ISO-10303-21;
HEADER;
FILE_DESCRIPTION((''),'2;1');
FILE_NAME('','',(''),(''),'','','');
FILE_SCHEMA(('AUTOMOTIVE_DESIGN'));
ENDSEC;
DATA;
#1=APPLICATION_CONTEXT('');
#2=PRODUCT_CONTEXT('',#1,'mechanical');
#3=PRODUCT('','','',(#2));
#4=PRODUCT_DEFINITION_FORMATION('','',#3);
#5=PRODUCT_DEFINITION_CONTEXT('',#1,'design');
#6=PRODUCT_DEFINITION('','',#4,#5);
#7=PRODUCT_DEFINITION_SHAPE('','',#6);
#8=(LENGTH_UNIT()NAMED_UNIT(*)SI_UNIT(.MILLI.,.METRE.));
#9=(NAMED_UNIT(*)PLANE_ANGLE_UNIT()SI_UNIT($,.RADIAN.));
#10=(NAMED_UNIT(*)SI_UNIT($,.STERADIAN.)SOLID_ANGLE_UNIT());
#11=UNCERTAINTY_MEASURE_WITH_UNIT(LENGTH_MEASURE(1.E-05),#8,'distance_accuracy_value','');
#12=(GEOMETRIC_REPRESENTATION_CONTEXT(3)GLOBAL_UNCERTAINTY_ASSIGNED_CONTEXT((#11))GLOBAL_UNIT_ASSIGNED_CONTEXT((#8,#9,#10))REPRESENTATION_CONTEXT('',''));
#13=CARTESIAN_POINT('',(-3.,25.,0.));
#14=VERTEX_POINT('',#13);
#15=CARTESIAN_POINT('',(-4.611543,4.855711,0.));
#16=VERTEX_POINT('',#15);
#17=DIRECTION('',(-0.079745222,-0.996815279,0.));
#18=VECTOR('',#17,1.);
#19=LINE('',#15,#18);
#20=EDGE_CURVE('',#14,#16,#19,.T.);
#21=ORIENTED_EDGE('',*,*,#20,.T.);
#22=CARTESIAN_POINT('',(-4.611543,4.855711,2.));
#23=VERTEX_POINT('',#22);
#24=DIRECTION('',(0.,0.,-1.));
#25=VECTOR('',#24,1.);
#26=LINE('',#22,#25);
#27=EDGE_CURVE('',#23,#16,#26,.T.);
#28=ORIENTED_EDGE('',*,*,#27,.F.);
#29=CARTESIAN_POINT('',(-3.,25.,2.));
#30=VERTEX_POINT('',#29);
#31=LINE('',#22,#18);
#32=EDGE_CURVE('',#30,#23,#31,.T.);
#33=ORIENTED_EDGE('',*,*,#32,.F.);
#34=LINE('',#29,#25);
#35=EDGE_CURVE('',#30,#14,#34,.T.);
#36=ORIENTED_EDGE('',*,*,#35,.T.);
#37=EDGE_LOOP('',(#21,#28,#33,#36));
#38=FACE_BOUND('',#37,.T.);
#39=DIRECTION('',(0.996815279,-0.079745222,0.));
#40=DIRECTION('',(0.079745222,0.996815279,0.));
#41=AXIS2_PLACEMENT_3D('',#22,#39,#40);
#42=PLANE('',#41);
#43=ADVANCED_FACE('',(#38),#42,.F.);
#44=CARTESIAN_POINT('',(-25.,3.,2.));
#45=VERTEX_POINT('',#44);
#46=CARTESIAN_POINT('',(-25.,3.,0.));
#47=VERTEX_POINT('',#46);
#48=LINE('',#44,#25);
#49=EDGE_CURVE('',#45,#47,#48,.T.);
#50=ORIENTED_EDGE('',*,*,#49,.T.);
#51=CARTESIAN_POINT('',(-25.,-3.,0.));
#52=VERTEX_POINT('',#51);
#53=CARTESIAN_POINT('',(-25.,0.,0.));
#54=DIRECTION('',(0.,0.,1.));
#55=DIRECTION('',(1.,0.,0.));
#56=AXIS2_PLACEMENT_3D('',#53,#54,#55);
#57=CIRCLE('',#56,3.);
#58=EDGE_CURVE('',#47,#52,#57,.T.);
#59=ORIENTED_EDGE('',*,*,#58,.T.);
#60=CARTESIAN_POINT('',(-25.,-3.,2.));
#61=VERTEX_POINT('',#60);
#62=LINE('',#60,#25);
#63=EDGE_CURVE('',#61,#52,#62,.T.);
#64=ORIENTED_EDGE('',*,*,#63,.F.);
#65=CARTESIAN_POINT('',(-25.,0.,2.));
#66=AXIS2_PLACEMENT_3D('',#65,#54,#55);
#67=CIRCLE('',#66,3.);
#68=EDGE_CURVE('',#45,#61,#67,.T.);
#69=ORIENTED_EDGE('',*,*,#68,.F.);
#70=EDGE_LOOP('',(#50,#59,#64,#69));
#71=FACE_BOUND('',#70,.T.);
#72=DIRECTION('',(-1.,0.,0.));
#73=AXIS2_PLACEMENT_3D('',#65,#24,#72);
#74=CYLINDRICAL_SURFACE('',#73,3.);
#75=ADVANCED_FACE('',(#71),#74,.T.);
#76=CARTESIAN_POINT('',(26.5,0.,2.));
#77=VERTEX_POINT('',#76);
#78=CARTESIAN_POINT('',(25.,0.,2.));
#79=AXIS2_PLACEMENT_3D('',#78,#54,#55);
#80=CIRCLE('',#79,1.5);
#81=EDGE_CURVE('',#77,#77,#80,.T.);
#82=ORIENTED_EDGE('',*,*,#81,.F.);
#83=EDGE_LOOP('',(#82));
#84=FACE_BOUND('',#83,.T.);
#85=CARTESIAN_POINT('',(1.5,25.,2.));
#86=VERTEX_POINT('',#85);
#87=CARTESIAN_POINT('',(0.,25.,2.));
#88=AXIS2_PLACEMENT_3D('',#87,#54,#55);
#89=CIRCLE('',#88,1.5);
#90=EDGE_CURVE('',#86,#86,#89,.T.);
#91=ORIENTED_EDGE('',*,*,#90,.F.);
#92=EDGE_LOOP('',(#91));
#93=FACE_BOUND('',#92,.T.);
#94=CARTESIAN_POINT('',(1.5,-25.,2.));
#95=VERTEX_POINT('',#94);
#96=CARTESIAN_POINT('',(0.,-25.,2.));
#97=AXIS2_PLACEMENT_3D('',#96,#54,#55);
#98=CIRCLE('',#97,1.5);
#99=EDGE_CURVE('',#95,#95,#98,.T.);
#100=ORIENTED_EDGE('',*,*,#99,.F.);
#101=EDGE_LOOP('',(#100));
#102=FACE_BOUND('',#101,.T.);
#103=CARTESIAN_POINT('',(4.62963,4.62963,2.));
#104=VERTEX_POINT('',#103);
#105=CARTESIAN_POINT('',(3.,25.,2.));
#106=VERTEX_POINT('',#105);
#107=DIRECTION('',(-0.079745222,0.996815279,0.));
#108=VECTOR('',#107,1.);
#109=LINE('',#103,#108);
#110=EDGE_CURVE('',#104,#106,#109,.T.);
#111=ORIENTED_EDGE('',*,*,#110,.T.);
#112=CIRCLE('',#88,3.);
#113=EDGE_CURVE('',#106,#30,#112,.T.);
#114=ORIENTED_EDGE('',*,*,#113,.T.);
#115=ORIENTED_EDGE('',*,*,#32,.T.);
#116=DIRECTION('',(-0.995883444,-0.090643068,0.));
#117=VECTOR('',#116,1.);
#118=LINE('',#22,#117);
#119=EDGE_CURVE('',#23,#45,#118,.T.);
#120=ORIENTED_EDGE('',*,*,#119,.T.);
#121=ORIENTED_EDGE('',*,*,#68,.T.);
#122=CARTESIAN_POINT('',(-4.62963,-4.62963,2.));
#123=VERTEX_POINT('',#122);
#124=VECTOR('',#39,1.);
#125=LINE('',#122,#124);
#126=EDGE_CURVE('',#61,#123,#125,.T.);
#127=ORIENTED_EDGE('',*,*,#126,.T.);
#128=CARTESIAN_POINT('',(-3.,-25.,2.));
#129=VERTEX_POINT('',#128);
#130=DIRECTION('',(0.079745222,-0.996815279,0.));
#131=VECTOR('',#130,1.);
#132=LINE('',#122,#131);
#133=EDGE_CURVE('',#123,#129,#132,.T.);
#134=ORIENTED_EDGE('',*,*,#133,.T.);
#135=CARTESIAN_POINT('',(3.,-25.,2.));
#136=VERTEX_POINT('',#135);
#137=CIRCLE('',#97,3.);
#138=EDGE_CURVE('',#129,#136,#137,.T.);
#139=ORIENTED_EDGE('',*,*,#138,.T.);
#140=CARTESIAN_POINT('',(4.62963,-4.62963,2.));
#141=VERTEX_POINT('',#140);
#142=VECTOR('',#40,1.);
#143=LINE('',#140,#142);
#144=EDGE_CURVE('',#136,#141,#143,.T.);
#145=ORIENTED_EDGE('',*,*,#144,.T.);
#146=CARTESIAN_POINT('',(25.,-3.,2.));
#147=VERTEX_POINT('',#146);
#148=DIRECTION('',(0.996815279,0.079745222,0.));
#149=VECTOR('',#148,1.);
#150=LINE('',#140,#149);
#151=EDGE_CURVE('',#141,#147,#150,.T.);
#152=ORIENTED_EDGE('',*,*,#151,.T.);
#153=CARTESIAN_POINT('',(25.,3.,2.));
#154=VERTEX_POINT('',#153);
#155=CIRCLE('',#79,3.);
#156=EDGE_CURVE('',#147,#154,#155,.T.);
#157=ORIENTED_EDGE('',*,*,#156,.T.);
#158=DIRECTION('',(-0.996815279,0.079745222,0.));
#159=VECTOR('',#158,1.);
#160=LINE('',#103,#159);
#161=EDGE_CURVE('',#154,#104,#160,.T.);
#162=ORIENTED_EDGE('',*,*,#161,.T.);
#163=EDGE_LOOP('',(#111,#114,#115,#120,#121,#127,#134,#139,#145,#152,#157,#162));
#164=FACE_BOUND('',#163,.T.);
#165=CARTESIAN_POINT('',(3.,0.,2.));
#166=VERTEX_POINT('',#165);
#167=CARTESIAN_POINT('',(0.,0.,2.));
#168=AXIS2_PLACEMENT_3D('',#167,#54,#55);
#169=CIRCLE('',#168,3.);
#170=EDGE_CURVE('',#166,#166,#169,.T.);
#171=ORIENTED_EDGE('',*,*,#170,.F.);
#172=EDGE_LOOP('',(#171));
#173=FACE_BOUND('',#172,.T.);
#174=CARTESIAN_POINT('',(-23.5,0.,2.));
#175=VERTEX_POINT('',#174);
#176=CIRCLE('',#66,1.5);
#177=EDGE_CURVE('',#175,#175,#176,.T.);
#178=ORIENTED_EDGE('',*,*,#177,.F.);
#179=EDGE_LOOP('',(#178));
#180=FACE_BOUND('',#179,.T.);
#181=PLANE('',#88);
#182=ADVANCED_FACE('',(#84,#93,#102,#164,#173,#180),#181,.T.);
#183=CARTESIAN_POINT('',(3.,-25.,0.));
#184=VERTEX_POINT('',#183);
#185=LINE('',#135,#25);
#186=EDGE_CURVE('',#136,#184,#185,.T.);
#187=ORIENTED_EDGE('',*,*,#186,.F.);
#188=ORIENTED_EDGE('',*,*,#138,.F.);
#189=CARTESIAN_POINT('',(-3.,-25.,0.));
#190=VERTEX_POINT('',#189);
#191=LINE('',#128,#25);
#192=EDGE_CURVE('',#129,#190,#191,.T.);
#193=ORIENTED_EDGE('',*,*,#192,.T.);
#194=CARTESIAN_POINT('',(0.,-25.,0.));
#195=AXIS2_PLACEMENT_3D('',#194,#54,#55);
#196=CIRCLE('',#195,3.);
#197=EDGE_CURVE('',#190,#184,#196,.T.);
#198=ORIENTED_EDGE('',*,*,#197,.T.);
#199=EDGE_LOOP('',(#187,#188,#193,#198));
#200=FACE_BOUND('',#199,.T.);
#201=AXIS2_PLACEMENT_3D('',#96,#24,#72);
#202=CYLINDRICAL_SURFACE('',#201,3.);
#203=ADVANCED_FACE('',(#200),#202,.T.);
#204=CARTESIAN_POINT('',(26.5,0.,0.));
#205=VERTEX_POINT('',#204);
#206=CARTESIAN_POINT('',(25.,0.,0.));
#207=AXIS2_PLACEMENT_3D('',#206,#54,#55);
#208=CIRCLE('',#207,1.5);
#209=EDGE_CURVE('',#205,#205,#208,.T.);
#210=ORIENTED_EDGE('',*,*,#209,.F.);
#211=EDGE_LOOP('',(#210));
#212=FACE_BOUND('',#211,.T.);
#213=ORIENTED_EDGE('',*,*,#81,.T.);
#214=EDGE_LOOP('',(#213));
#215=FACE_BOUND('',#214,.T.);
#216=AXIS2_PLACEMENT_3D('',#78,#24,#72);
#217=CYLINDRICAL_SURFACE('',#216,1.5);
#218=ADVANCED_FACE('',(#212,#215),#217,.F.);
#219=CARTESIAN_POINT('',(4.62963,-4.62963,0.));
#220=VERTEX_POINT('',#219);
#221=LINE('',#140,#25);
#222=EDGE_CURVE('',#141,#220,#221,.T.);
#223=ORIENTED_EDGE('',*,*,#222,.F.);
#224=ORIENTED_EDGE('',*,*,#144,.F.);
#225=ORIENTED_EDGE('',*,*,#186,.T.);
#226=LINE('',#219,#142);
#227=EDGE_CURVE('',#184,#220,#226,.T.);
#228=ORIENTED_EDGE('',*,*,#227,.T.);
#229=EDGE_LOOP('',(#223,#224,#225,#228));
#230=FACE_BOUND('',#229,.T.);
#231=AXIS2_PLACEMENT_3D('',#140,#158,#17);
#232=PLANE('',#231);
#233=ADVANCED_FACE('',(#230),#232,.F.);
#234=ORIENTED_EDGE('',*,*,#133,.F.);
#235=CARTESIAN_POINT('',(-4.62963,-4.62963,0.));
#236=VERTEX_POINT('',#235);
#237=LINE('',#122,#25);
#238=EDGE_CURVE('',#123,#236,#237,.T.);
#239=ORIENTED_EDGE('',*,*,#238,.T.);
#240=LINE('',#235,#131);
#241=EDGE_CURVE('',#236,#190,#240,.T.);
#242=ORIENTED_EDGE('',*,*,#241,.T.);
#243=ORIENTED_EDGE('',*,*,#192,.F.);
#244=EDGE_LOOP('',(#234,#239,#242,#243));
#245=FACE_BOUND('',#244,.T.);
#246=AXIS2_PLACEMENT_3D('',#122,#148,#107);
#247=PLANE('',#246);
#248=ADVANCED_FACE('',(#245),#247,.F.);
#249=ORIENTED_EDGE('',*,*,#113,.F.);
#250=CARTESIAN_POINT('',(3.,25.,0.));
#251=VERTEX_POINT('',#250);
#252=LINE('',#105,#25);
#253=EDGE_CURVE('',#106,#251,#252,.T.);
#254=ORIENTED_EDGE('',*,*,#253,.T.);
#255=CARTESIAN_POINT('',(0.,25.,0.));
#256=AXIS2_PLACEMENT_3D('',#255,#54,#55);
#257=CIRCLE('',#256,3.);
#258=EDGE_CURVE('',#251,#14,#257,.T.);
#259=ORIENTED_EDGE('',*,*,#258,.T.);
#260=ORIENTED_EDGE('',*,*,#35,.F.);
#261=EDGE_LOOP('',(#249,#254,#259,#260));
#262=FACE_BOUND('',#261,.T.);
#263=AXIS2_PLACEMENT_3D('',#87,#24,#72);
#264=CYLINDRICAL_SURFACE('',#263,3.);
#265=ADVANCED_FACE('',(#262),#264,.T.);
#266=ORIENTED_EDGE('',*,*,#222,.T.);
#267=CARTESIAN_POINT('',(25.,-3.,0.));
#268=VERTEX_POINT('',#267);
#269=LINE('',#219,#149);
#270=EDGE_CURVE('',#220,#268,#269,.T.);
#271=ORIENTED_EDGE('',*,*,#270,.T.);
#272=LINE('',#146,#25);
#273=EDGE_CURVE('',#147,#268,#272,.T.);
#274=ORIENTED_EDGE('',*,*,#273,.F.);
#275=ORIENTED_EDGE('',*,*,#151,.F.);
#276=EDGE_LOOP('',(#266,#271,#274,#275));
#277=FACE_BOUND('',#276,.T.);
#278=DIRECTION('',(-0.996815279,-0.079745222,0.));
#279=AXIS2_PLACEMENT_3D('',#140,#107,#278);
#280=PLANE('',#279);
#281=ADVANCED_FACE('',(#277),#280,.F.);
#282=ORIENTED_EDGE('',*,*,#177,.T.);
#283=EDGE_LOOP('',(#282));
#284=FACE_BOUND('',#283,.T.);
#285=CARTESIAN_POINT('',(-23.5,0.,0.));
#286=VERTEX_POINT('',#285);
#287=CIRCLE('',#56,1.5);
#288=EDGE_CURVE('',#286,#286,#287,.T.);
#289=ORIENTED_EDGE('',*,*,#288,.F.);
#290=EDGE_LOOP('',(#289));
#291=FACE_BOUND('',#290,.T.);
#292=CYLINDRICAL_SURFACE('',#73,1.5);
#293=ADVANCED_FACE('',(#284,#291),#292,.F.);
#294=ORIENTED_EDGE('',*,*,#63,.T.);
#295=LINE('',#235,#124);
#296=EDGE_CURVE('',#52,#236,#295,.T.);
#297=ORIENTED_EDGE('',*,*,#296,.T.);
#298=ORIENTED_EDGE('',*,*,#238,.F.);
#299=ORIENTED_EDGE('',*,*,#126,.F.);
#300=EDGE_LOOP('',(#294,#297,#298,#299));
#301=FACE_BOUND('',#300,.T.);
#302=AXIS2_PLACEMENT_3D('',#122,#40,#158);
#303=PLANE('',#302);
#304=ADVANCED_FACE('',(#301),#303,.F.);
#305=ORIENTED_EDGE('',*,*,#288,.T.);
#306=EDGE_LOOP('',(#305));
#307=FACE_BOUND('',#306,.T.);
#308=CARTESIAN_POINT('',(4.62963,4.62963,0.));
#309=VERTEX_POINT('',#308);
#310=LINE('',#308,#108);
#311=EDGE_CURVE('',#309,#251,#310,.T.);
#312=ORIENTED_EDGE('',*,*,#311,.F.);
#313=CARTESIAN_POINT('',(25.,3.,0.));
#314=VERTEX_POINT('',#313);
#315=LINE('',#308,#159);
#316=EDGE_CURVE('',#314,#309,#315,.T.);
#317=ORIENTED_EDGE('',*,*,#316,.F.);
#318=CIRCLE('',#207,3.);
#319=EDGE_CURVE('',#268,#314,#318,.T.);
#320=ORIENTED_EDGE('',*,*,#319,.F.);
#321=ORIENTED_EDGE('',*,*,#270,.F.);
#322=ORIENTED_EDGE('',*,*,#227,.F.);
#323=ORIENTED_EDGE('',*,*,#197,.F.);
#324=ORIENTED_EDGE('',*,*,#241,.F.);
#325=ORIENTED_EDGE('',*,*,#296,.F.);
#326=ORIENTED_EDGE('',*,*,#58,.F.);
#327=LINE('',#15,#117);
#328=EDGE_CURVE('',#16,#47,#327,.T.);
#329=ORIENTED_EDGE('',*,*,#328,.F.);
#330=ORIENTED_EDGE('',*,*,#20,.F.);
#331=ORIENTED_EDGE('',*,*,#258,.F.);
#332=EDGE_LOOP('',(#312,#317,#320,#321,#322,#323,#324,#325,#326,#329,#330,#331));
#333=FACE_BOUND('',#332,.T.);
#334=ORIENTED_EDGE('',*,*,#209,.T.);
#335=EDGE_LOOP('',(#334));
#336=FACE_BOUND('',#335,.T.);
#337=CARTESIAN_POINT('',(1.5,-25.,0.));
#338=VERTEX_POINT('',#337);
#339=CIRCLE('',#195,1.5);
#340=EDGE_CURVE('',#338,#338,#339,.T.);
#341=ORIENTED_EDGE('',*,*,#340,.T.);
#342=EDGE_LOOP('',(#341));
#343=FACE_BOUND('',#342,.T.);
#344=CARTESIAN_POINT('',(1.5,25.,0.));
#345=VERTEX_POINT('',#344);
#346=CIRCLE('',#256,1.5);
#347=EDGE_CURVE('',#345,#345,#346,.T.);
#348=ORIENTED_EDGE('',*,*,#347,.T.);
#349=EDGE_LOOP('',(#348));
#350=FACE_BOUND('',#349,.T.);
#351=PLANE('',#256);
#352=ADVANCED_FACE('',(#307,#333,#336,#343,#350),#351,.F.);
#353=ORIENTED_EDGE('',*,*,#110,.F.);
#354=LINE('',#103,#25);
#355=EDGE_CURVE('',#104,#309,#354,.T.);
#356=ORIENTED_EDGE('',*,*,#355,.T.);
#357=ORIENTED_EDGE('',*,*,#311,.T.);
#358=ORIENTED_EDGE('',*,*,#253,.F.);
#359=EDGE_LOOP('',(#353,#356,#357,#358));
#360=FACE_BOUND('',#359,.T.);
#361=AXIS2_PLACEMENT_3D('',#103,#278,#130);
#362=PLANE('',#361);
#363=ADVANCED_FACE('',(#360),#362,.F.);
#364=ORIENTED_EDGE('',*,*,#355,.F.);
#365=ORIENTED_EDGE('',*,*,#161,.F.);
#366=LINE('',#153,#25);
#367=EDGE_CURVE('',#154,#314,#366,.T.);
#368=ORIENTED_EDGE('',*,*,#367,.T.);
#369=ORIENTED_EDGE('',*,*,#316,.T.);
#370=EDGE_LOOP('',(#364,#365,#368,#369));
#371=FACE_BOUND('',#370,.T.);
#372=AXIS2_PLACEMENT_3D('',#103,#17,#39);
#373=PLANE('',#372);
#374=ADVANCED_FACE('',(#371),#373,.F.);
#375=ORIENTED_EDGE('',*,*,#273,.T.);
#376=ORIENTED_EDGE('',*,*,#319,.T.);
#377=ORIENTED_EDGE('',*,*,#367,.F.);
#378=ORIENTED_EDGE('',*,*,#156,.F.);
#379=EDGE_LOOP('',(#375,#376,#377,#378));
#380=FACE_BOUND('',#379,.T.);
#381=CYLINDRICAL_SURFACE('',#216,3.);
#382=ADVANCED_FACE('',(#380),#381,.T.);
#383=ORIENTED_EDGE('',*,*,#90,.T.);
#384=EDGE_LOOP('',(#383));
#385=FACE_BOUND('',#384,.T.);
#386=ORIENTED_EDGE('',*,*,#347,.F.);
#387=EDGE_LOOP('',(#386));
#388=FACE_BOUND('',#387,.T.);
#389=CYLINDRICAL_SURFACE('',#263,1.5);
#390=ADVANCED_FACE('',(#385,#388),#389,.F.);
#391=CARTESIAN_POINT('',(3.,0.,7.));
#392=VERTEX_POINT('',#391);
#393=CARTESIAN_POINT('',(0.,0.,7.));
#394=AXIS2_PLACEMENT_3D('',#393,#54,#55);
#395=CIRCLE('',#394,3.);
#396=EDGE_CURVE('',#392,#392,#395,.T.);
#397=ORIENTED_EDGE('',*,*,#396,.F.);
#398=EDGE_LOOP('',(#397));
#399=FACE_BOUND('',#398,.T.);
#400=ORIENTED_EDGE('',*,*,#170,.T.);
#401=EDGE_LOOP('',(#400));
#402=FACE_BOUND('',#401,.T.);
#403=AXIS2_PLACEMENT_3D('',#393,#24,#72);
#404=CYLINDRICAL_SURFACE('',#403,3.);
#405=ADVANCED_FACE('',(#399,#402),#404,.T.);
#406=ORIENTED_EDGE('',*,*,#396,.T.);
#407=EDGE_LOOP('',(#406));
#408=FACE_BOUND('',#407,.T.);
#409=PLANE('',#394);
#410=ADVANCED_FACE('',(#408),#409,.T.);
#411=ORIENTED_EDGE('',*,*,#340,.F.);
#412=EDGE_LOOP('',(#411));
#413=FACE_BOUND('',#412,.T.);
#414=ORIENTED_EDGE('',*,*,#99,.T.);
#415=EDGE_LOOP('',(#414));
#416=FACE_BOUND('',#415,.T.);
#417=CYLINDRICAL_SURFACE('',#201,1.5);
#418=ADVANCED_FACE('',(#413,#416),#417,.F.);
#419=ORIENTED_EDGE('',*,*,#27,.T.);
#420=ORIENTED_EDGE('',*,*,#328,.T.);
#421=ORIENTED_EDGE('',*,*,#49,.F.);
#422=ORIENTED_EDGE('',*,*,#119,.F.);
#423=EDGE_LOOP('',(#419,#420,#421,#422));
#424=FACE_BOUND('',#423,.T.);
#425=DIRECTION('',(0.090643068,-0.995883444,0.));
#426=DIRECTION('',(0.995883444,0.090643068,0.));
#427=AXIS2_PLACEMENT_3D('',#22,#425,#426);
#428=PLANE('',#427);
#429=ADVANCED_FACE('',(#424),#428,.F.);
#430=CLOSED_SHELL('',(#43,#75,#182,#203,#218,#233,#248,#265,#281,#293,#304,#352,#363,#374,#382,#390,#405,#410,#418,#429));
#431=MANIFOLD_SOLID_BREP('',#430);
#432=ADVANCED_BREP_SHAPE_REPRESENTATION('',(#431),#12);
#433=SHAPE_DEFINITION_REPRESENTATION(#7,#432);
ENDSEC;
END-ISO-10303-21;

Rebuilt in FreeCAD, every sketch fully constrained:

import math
import FreeCAD as App
import Part
import Sketcher
from FreeCAD import Vector
Q = App.Units.Quantity

doc = App.newDocument("Part")
body = doc.addObject("PartDesign::Body", "Body")

# Sketch on XY plane
sketch1 = body.newObject("Sketcher::SketchObject", "Sketch")
sketch1.AttachmentSupport = (doc.getObject("XY_Plane"), [""])
sketch1.MapMode = "FlatFace"
sketch1.addGeometry(Part.LineSegment(Vector(25, 3, 0), Vector(4.6, 4.6, 0)), False)
sketch1.addGeometry(Part.LineSegment(Vector(4.6, 4.6, 0), Vector(3, 25, 0)), False)
sketch1.addGeometry(Part.ArcOfCircle(Part.Circle(Vector(0, 25, 0), Vector(0, 0, 1), 3), math.radians(0), math.radians(180)), False)
sketch1.addGeometry(Part.LineSegment(Vector(-3, 25, 0), Vector(-4.6, 4.9, 0)), False)
sketch1.addGeometry(Part.LineSegment(Vector(-4.6, 4.9, 0), Vector(-25, 3, 0)), False)
sketch1.addGeometry(Part.ArcOfCircle(Part.Circle(Vector(-25, 0, 0), Vector(0, 0, 1), 3), math.radians(90), math.radians(270)), False)
sketch1.addGeometry(Part.LineSegment(Vector(-25, -3, 0), Vector(-4.6, -4.6, 0)), False)
sketch1.addGeometry(Part.LineSegment(Vector(-4.6, -4.6, 0), Vector(-3, -25, 0)), False)
sketch1.addGeometry(Part.ArcOfCircle(Part.Circle(Vector(0, -25, 0), Vector(0, 0, 1), 3), math.radians(180), math.radians(360)), False)
sketch1.addGeometry(Part.LineSegment(Vector(3, -25, 0), Vector(4.6, -4.6, 0)), False)
sketch1.addGeometry(Part.LineSegment(Vector(4.6, -4.6, 0), Vector(25, -3, 0)), False)
sketch1.addGeometry(Part.ArcOfCircle(Part.Circle(Vector(25, 0, 0), Vector(0, 0, 1), 3), math.radians(-90), math.radians(90)), False)
sketch1.addGeometry(Part.Circle(Vector(0, -25, 0), Vector(0, 0, 1), 1.5), False)
sketch1.addGeometry(Part.Circle(Vector(25, 0, 0), Vector(0, 0, 1), 1.5), False)
sketch1.addGeometry(Part.Circle(Vector(-25, 0, 0), Vector(0, 0, 1), 1.5), False)
sketch1.addGeometry(Part.Circle(Vector(0, 25, 0), Vector(0, 0, 1), 1.5), False)
sketch1.addConstraint(Sketcher.Constraint("Coincident", 0, 2, 1, 1))
sketch1.addConstraint(Sketcher.Constraint("Coincident", 1, 2, 2, 1))
sketch1.addConstraint(Sketcher.Constraint("Coincident", 2, 2, 3, 1))
sketch1.addConstraint(Sketcher.Constraint("Coincident", 3, 2, 4, 1))
sketch1.addConstraint(Sketcher.Constraint("Coincident", 4, 2, 5, 1))
sketch1.addConstraint(Sketcher.Constraint("Coincident", 5, 2, 6, 1))
sketch1.addConstraint(Sketcher.Constraint("Coincident", 6, 2, 7, 1))
sketch1.addConstraint(Sketcher.Constraint("Coincident", 7, 2, 8, 1))
sketch1.addConstraint(Sketcher.Constraint("Coincident", 8, 2, 9, 1))
sketch1.addConstraint(Sketcher.Constraint("Coincident", 9, 2, 10, 1))
sketch1.addConstraint(Sketcher.Constraint("Coincident", 10, 2, 11, 1))
sketch1.addConstraint(Sketcher.Constraint("Coincident", 11, 2, 0, 1))
sketch1.addConstraint(Sketcher.Constraint("Coincident", 12, 3, 8, 3))
sketch1.addConstraint(Sketcher.Constraint("Coincident", 13, 3, 11, 3))
sketch1.addConstraint(Sketcher.Constraint("Coincident", 14, 3, 5, 3))
sketch1.addConstraint(Sketcher.Constraint("Coincident", 15, 3, 2, 3))
sketch1.addConstraint(Sketcher.Constraint("Equal", 2, 5))
sketch1.addConstraint(Sketcher.Constraint("Equal", 5, 8))
sketch1.addConstraint(Sketcher.Constraint("Equal", 8, 11))
sketch1.addConstraint(Sketcher.Constraint("Equal", 12, 13))
sketch1.addConstraint(Sketcher.Constraint("Equal", 13, 14))
sketch1.addConstraint(Sketcher.Constraint("Equal", 14, 15))
sketch1.addConstraint(Sketcher.Constraint("Symmetric", 2, 3, 8, 3, -1, 1))
sketch1.addConstraint(Sketcher.Constraint("Symmetric", 5, 3, 11, 3, -1, 1))
sketch1.addConstraint(Sketcher.Constraint("Symmetric", 0, 2, 6, 2, -1, 1))
sketch1.addConstraint(Sketcher.Constraint("Symmetric", 1, 2, 2, 2, -2))
sketch1.addConstraint(Sketcher.Constraint("Symmetric", 6, 2, 9, 2, -2))
sketch1.addConstraint(Sketcher.Constraint("Symmetric", 5, 2, 10, 2, -2))
sketch1.addConstraint(Sketcher.Constraint("Perpendicular", 0, 3))
sketch1.addConstraint(Sketcher.Constraint("Perpendicular", 3, 6))
sketch1.addConstraint(Sketcher.Constraint("Parallel", 1, 7))
sketch1.addConstraint(Sketcher.Constraint("Perpendicular", 6, 9))
sketch1.addConstraint(Sketcher.Constraint("Perpendicular", 7, 10))
sketch1.addConstraint(Sketcher.Constraint("Horizontal", 15, 3, 1, 2))
sketch1.addConstraint(Sketcher.Constraint("Vertical", 14, 3, 4, 2))
sketch1.addConstraint(Sketcher.Constraint("Vertical", 4, 2, 5, 2))
sketch1.addConstraint(Sketcher.Constraint("Equal", 0, 1))
sketch1.addConstraint(Sketcher.Constraint("Diameter", 12, Q("3 mm")))
sketch1.addConstraint(Sketcher.Constraint("Radius", 2, Q("3 mm")))
sketch1.addConstraint(Sketcher.Constraint("DistanceY", -1, 1, 2, 3, Q("25 mm")))
sketch1.addConstraint(Sketcher.Constraint("Distance", 0, Q("20.435452 mm")))
sketch1.addConstraint(Sketcher.Constraint("DistanceY", -1, 1, 3, 2, Q("4.855711 mm")))
pad1 = body.newObject("PartDesign::Pad", "Pad")
pad1.Profile = sketch1
pad1.Length = 2

# Sketch on XY plane
sketch2 = body.newObject("Sketcher::SketchObject", "Sketch001")
sketch2.AttachmentSupport = (doc.getObject("XY_Plane"), [""])
sketch2.MapMode = "FlatFace"
sketch2.AttachmentOffset = App.Placement(Vector(0, 0, 2), App.Rotation())
sketch2.addGeometry(Part.Circle(Vector(0, 0, 0), Vector(0, 0, 1), 3), False)
sketch2.addConstraint(Sketcher.Constraint("Coincident", 0, 3, -1, 1))
sketch2.addConstraint(Sketcher.Constraint("Diameter", 0, Q("6 mm")))
pad2 = body.newObject("PartDesign::Pad", "Pad001")
pad2.Profile = sketch2
pad2.Length = 5

doc.recompute()
